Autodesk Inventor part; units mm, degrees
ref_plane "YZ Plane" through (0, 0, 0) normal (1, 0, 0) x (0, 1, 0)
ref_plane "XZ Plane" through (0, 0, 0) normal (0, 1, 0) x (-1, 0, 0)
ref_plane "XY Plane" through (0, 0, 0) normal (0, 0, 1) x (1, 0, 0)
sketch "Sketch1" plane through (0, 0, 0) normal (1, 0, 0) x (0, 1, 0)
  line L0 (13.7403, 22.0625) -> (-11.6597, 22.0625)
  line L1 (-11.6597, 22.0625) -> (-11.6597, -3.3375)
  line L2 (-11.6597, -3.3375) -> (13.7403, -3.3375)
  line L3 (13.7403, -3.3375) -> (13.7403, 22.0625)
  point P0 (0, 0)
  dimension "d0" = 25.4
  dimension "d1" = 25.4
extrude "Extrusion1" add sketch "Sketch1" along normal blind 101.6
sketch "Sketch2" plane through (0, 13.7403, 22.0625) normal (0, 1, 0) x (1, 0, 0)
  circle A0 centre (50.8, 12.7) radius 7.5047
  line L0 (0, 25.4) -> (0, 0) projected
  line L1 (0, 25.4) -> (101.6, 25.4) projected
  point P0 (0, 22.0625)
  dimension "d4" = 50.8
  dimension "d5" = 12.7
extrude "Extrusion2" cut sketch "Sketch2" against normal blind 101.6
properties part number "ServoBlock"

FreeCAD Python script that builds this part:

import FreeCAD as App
import Part
import Sketcher

V = App.Vector
Q = App.Units.Quantity


def add_polygon(sketch, points):
    """Adds a closed chain of lines whose ends are joined by coincident constraints."""
    first, n = sketch.GeometryCount, len(points)
    for a, b in zip(points, points[1:] + points[:1]):
        sketch.addGeometry(Part.LineSegment(App.Vector(*a, 0), App.Vector(*b, 0)), False)
    for i in range(n):
        sketch.addConstraint(Sketcher.Constraint("Coincident", first + i, 2, first + (i + 1) % n, 1))

doc = App.newDocument("Part")
body = doc.addObject("PartDesign::Body", "Body")

# Sketch on YZ plane
sketch1 = body.newObject("Sketcher::SketchObject", "Sketch")
sketch1.AttachmentSupport = (doc.getObject("YZ_Plane"), [""])
sketch1.MapMode = "FlatFace"
add_polygon(sketch1, [(13.7403, -3.3375), (13.7403, 22.0625), (-11.6597, 22.0625), (-11.6597, -3.3375)])  # lines 0-3
sketch1.addConstraint([
    Sketcher.Constraint("Vertical", 0),
    Sketcher.Constraint("Horizontal", 1),
    Sketcher.Constraint("Vertical", 2),
    Sketcher.Constraint("Horizontal", 3),
    Sketcher.Constraint("Equal", 3, 0),
    Sketcher.Constraint("DistanceX", 1, 2, 1, 1, Q("1 in")),
    Sketcher.Constraint("DistanceY", -1, 1, 0, 2, Q("0.8686 in")),
    Sketcher.Constraint("DistanceX", -1, 1, 0, 2, 13.7403),
])
pad1 = body.newObject("PartDesign::Pad", "Pad")
pad1.Profile = sketch1
pad1.Length = Q("4 in")

# Sketch on XZ plane
sketch2 = body.newObject("Sketcher::SketchObject", "Sketch001")
sketch2.AttachmentSupport = (doc.getObject("XZ_Plane"), [""])
sketch2.MapMode = "FlatFace"
sketch2.AttachmentOffset = App.Placement(V(0, 0, -13.7403), App.Rotation())
sketch2.addGeometry(Part.Circle(V(50.8, 9.3625, 0), V(0, 0, 1), 7.5047), False)
sketch2.addConstraint([
    Sketcher.Constraint("DistanceX", -1, 1, 0, 3, Q("2 in")),
    Sketcher.Constraint("Diameter", 0, 15.0094),
    Sketcher.Constraint("DistanceY", -1, 1, 0, 3, Q("0.3686 in")),
])
pocket1 = body.newObject("PartDesign::Pocket", "Pocket")
pocket1.Profile = sketch2
pocket1.Length = Q("4 in")
pocket1.Reversed = True

doc.recompute()
